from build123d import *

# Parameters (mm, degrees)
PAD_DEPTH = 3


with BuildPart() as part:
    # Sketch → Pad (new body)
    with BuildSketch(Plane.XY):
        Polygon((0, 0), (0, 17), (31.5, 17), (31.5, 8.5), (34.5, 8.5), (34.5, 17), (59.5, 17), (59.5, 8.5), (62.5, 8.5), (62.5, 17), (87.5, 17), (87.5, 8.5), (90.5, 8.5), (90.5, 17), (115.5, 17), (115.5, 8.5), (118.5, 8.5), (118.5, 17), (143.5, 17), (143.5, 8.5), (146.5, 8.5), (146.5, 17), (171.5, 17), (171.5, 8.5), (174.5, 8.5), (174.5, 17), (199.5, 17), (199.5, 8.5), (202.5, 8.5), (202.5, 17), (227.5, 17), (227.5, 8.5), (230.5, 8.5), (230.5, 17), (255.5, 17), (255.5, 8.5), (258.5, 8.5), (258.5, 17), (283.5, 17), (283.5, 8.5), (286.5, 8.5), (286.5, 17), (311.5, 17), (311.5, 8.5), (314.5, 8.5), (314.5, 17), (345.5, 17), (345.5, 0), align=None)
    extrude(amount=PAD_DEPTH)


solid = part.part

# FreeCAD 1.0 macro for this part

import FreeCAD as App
import Part
import Sketcher
from FreeCAD import Vector
Q = App.Units.Quantity


def add_polygon(sketch, points):
    """Adds a closed chain of lines whose ends are joined by coincident constraints."""
    first, n = sketch.GeometryCount, len(points)
    for a, b in zip(points, points[1:] + points[:1]):
        sketch.addGeometry(Part.LineSegment(App.Vector(*a, 0), App.Vector(*b, 0)), False)
    for i in range(n):
        sketch.addConstraint(Sketcher.Constraint("Coincident", first + i, 2, first + (i + 1) % n, 1))

doc = App.newDocument("Part")
body = doc.addObject("PartDesign::Body", "Body")

# Sketch on XY plane
sketch1 = body.newObject("Sketcher::SketchObject", "Sketch")
sketch1.AttachmentSupport = (doc.getObject("XY_Plane"), [""])
sketch1.MapMode = "FlatFace"
add_polygon(sketch1, [(0, 17), (0, 0), (345.5, 0), (345.5, 17), (314.5, 17), (314.5, 8.5), (311.5, 8.5), (311.5, 17), (286.5, 17), (286.5, 8.5), (283.5, 8.5), (283.5, 17), (258.5, 17), (258.5, 8.5), (255.5, 8.5), (255.5, 17), (230.5, 17), (230.5, 8.5), (227.5, 8.5), (227.5, 17), (202.5, 17), (202.5, 8.5), (199.5, 8.5), (199.5, 17), (174.5, 17), (174.5, 8.5), (171.5, 8.5), (171.5, 17), (146.5, 17), (146.5, 8.5), (143.5, 8.5), (143.5, 17), (118.5, 17), (118.5, 8.5), (115.5, 8.5), (115.5, 17), (90.5, 17), (90.5, 8.5), (87.5, 8.5), (87.5, 17), (62.5, 17), (62.5, 8.5), (59.5, 8.5), (59.5, 17), (34.5, 17), (34.5, 8.5), (31.5, 8.5), (31.5, 17)])  # lines 0-47
sketch1.addConstraint([
    Sketcher.Constraint("Vertical", 0),
    Sketcher.Constraint("Horizontal", 1),
    Sketcher.Constraint("Vertical", 2),
    Sketcher.Constraint("Horizontal", 3),
    Sketcher.Constraint("Vertical", 4),
    Sketcher.Constraint("Horizontal", 5),
    Sketcher.Constraint("Vertical", 6),
    Sketcher.Constraint("Horizontal", 7),
    Sketcher.Constraint("Vertical", 8),
    Sketcher.Constraint("Horizontal", 9),
    Sketcher.Constraint("Vertical", 10),
    Sketcher.Constraint("Horizontal", 11),
    Sketcher.Constraint("Vertical", 12),
    Sketcher.Constraint("Horizontal", 13),
    Sketcher.Constraint("Vertical", 14),
    Sketcher.Constraint("Horizontal", 15),
    Sketcher.Constraint("Vertical", 16),
    Sketcher.Constraint("Horizontal", 17),
    Sketcher.Constraint("Vertical", 18),
    Sketcher.Constraint("Horizontal", 19),
    Sketcher.Constraint("Vertical", 20),
    Sketcher.Constraint("Horizontal", 21),
    Sketcher.Constraint("Vertical", 22),
    Sketcher.Constraint("Horizontal", 23),
    Sketcher.Constraint("Vertical", 24),
    Sketcher.Constraint("Horizontal", 25),
    Sketcher.Constraint("Vertical", 26),
    Sketcher.Constraint("Horizontal", 27),
    Sketcher.Constraint("Vertical", 28),
    Sketcher.Constraint("Horizontal", 29),
    Sketcher.Constraint("Vertical", 30),
    Sketcher.Constraint("Horizontal", 31),
    Sketcher.Constraint("Vertical", 32),
    Sketcher.Constraint("Horizontal", 33),
    Sketcher.Constraint("Vertical", 34),
    Sketcher.Constraint("Horizontal", 35),
    Sketcher.Constraint("Vertical", 36),
    Sketcher.Constraint("Horizontal", 37),
    Sketcher.Constraint("Vertical", 38),
    Sketcher.Constraint("Horizontal", 39),
    Sketcher.Constraint("Vertical", 40),
    Sketcher.Constraint("Horizontal", 41),
    Sketcher.Constraint("Vertical", 42),
    Sketcher.Constraint("Horizontal", 43),
    Sketcher.Constraint("Vertical", 44),
    Sketcher.Constraint("Horizontal", 45),
    Sketcher.Constraint("Vertical", 46),
    Sketcher.Constraint("Horizontal", 47),
    Sketcher.Constraint("Coincident", 0, 2, -1, 1),
    Sketcher.Constraint("Horizontal", 3, 2, 6, 2),
    Sketcher.Constraint("Horizontal", 5, 2, 8, 2),
    Sketcher.Constraint("Horizontal", 7, 2, 10, 2),
    Sketcher.Constraint("Horizontal", 9, 2, 12, 2),
    Sketcher.Constraint("Horizontal", 11, 2, 14, 2),
    Sketcher.Constraint("Horizontal", 13, 2, 16, 2),
    Sketcher.Constraint("Horizontal", 15, 2, 18, 2),
    Sketcher.Constraint("Horizontal", 17, 2, 20, 2),
    Sketcher.Constraint("Horizontal", 19, 2, 22, 2),
    Sketcher.Constraint("Horizontal", 21, 2, 24, 2),
    Sketcher.Constraint("Horizontal", 23, 2, 26, 2),
    Sketcher.Constraint("Horizontal", 25, 2, 28, 2),
    Sketcher.Constraint("Horizontal", 27, 2, 30, 2),
    Sketcher.Constraint("Horizontal", 29, 2, 32, 2),
    Sketcher.Constraint("Horizontal", 31, 2, 34, 2),
    Sketcher.Constraint("Horizontal", 33, 2, 36, 2),
    Sketcher.Constraint("Horizontal", 35, 2, 38, 2),
    Sketcher.Constraint("Horizontal", 37, 2, 40, 2),
    Sketcher.Constraint("Horizontal", 39, 2, 42, 2),
    Sketcher.Constraint("Horizontal", 41, 2, 44, 2),
    Sketcher.Constraint("Horizontal", 43, 2, 46, 2),
    Sketcher.Constraint("Equal", 5, 9),
    Sketcher.Constraint("Equal", 7, 11),
    Sketcher.Constraint("Equal", 9, 13),
    Sketcher.Constraint("Equal", 11, 15),
    Sketcher.Constraint("Equal", 13, 17),
    Sketcher.Constraint("Equal", 15, 19),
    Sketcher.Constraint("Equal", 17, 21),
    Sketcher.Constraint("Equal", 19, 23),
    Sketcher.Constraint("Equal", 21, 25),
    Sketcher.Constraint("Equal", 23, 27),
    Sketcher.Constraint("Equal", 25, 29),
    Sketcher.Constraint("Equal", 27, 31),
    Sketcher.Constraint("Equal", 29, 33),
    Sketcher.Constraint("Equal", 31, 35),
    Sketcher.Constraint("Equal", 33, 37),
    Sketcher.Constraint("Equal", 35, 39),
    Sketcher.Constraint("Equal", 37, 41),
    Sketcher.Constraint("Equal", 39, 43),
    Sketcher.Constraint("Equal", 41, 45),
    Sketcher.Constraint("DistanceX", 3, 2, 3, 1, Q("31 mm")),
    Sketcher.Constraint("DistanceX", 5, 2, 5, 1, Q("3 mm")),
    Sketcher.Constraint("DistanceX", 7, 2, 7, 1, Q("25 mm")),
    Sketcher.Constraint("DistanceY", 0, 2, 0, 1, Q("17 mm")),
    Sketcher.Constraint("DistanceX", 1, 1, 1, 2, Q("345.5 mm")),
    Sketcher.Constraint("DistanceY", 4, 2, 4, 1, Q("8.5 mm")),
])
pad1 = body.newObject("PartDesign::Pad", "Pad")
pad1.Profile = sketch1
pad1.Length = 3

doc.recompute()
